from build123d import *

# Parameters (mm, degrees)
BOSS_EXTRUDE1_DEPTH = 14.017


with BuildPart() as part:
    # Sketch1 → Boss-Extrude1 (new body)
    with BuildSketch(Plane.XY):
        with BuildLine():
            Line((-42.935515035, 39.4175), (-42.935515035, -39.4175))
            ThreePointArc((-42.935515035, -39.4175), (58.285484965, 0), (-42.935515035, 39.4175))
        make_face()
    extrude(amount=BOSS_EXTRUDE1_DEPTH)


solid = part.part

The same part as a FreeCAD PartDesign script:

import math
import FreeCAD as App
import Part
import Sketcher
from FreeCAD import Vector
Q = App.Units.Quantity

doc = App.newDocument("Part")
params = doc.addObject("Spreadsheet::Sheet", "Params")
for row, (alias, value) in enumerate([
    ("pad1_length", "14.017 mm"),
], start=1):
    params.set(f"A{row}", alias)
    params.set(f"B{row}", "=" + value)
    params.setAlias(f"B{row}", alias)

body = doc.addObject("PartDesign::Body", "Body")

# Sketch on XY plane
sketch1 = body.newObject("Sketcher::SketchObject", "Sketch")
sketch1.AttachmentSupport = (doc.getObject("XY_Plane"), [""])
sketch1.MapMode = "FlatFace"
sketch1.addGeometry(Part.LineSegment(Vector(-42.935515, 39.4175, 0), Vector(-42.935515, -39.4175, 0)), False)
sketch1.addGeometry(Part.ArcOfCircle(Part.Circle(Vector(0, 0, 0), Vector(0, 0, 1), 58.285485), math.radians(-137.446115), math.radians(137.446115)), False)
sketch1.addConstraint(Sketcher.Constraint("Coincident", 0, 1, 1, 2))
sketch1.addConstraint(Sketcher.Constraint("Coincident", 1, 1, 0, 2))
sketch1.addConstraint(Sketcher.Constraint("Vertical", 0))
sketch1.addConstraint(Sketcher.Constraint("Coincident", 1, 3, -1, 1))
sketch1.addConstraint(Sketcher.Constraint("DistanceY", 0, 2, 0, 1, Q("78.835 mm")))
sketch1.addConstraint(Sketcher.Constraint("Radius", 1, Q("58.285485 mm")))
pad1 = body.newObject("PartDesign::Pad", "Pad")
pad1.Profile = sketch1
pad1.setExpression("Length", "Params.pad1_length")

doc.recompute()
